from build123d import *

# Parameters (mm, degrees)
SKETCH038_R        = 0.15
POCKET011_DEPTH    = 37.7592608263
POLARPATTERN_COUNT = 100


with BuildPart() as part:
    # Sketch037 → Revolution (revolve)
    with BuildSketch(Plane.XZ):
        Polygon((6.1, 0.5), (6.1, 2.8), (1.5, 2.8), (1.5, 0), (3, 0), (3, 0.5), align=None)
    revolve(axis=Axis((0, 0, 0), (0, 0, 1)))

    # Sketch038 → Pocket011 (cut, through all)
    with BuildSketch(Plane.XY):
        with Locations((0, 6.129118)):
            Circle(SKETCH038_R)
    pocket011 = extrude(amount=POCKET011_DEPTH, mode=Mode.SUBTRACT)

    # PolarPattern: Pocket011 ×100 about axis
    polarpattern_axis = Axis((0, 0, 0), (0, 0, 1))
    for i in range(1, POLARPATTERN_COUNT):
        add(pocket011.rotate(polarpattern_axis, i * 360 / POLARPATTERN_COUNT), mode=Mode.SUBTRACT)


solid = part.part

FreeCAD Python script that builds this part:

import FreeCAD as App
import Part
import Sketcher

V = App.Vector
Q = App.Units.Quantity


def add_polygon(sketch, points):
    """Adds a closed chain of lines whose ends are joined by coincident constraints."""
    first, n = sketch.GeometryCount, len(points)
    for a, b in zip(points, points[1:] + points[:1]):
        sketch.addGeometry(Part.LineSegment(App.Vector(*a, 0), App.Vector(*b, 0)), False)
    for i in range(n):
        sketch.addConstraint(Sketcher.Constraint("Coincident", first + i, 2, first + (i + 1) % n, 1))

doc = App.newDocument("Part")
body = doc.addObject("PartDesign::Body", "Body")

# Sketch on XZ plane
sketch1 = doc.addObject("Sketcher::SketchObject", "Sketch")
body.addObject(sketch1)
sketch1.AttachmentSupport = (doc.XZ_Plane, [""])
sketch1.MapMode = "FlatFace"
add_polygon(sketch1, [(6.1, 0.5), (6.1, 2.8), (1.5, 2.8), (1.5, 0), (3, 0), (3, 0.5)])  # lines 0-5
sketch1.addConstraint([
    Sketcher.Constraint("Vertical", 0),
    Sketcher.Constraint("Horizontal", 1),
    Sketcher.Constraint("Vertical", 2),
    Sketcher.Constraint("Horizontal", 3),
    Sketcher.Constraint("Vertical", 4),
    Sketcher.Constraint("Horizontal", 5),
    Sketcher.Constraint("PointOnObject", 2, 2, -1),
    Sketcher.Constraint("DistanceX", 1, 2, 1, 1, Q("4.6 mm")),
    Sketcher.Constraint("DistanceX", 3, 1, 3, 2, Q("1.5 mm")),
    Sketcher.Constraint("DistanceY", 0, 1, 0, 2, Q("2.3 mm")),
    Sketcher.Constraint("DistanceY", 2, 2, 2, 1, Q("2.8 mm")),
    Sketcher.Constraint("DistanceX", -1, 1, 3, 2, Q("3 mm")),
])
revolution = doc.addObject("PartDesign::Revolution", "Revolution")
body.addObject(revolution)
revolution.Profile = sketch1
revolution.ReferenceAxis = (sketch1, ["V_Axis"])
revolution.Angle = 360

# Sketch on XY plane
sketch2 = doc.addObject("Sketcher::SketchObject", "Sketch001")
body.addObject(sketch2)
sketch2.AttachmentSupport = (doc.XY_Plane, [""])
sketch2.MapMode = "FlatFace"
sketch2.addGeometry(Part.Circle(V(0, 6.129118, 0), V(0, 0, 1), 0.15), False)
sketch2.addConstraint([
    Sketcher.Constraint("PointOnObject", 0, 3, -2),
    Sketcher.Constraint("Diameter", 0, Q("0.3 mm")),
    Sketcher.Constraint("DistanceY", -1, 1, 0, 3, Q("6.129118 mm")),
])
pocket1 = doc.addObject("PartDesign::Pocket", "Pocket")
body.addObject(pocket1)
pocket1.Profile = sketch2
pocket1.Type = "ThroughAll"
pocket1.Reversed = True
doc.recompute()

polarpattern = doc.addObject("PartDesign::PolarPattern", "PolarPattern")
body.addObject(polarpattern)
polarpattern.Originals = [pocket1]
polarpattern.Axis = (doc.Z_Axis, [""])
polarpattern.Angle = 360
polarpattern.Occurrences = 100
body.Tip = polarpattern

doc.recompute()
